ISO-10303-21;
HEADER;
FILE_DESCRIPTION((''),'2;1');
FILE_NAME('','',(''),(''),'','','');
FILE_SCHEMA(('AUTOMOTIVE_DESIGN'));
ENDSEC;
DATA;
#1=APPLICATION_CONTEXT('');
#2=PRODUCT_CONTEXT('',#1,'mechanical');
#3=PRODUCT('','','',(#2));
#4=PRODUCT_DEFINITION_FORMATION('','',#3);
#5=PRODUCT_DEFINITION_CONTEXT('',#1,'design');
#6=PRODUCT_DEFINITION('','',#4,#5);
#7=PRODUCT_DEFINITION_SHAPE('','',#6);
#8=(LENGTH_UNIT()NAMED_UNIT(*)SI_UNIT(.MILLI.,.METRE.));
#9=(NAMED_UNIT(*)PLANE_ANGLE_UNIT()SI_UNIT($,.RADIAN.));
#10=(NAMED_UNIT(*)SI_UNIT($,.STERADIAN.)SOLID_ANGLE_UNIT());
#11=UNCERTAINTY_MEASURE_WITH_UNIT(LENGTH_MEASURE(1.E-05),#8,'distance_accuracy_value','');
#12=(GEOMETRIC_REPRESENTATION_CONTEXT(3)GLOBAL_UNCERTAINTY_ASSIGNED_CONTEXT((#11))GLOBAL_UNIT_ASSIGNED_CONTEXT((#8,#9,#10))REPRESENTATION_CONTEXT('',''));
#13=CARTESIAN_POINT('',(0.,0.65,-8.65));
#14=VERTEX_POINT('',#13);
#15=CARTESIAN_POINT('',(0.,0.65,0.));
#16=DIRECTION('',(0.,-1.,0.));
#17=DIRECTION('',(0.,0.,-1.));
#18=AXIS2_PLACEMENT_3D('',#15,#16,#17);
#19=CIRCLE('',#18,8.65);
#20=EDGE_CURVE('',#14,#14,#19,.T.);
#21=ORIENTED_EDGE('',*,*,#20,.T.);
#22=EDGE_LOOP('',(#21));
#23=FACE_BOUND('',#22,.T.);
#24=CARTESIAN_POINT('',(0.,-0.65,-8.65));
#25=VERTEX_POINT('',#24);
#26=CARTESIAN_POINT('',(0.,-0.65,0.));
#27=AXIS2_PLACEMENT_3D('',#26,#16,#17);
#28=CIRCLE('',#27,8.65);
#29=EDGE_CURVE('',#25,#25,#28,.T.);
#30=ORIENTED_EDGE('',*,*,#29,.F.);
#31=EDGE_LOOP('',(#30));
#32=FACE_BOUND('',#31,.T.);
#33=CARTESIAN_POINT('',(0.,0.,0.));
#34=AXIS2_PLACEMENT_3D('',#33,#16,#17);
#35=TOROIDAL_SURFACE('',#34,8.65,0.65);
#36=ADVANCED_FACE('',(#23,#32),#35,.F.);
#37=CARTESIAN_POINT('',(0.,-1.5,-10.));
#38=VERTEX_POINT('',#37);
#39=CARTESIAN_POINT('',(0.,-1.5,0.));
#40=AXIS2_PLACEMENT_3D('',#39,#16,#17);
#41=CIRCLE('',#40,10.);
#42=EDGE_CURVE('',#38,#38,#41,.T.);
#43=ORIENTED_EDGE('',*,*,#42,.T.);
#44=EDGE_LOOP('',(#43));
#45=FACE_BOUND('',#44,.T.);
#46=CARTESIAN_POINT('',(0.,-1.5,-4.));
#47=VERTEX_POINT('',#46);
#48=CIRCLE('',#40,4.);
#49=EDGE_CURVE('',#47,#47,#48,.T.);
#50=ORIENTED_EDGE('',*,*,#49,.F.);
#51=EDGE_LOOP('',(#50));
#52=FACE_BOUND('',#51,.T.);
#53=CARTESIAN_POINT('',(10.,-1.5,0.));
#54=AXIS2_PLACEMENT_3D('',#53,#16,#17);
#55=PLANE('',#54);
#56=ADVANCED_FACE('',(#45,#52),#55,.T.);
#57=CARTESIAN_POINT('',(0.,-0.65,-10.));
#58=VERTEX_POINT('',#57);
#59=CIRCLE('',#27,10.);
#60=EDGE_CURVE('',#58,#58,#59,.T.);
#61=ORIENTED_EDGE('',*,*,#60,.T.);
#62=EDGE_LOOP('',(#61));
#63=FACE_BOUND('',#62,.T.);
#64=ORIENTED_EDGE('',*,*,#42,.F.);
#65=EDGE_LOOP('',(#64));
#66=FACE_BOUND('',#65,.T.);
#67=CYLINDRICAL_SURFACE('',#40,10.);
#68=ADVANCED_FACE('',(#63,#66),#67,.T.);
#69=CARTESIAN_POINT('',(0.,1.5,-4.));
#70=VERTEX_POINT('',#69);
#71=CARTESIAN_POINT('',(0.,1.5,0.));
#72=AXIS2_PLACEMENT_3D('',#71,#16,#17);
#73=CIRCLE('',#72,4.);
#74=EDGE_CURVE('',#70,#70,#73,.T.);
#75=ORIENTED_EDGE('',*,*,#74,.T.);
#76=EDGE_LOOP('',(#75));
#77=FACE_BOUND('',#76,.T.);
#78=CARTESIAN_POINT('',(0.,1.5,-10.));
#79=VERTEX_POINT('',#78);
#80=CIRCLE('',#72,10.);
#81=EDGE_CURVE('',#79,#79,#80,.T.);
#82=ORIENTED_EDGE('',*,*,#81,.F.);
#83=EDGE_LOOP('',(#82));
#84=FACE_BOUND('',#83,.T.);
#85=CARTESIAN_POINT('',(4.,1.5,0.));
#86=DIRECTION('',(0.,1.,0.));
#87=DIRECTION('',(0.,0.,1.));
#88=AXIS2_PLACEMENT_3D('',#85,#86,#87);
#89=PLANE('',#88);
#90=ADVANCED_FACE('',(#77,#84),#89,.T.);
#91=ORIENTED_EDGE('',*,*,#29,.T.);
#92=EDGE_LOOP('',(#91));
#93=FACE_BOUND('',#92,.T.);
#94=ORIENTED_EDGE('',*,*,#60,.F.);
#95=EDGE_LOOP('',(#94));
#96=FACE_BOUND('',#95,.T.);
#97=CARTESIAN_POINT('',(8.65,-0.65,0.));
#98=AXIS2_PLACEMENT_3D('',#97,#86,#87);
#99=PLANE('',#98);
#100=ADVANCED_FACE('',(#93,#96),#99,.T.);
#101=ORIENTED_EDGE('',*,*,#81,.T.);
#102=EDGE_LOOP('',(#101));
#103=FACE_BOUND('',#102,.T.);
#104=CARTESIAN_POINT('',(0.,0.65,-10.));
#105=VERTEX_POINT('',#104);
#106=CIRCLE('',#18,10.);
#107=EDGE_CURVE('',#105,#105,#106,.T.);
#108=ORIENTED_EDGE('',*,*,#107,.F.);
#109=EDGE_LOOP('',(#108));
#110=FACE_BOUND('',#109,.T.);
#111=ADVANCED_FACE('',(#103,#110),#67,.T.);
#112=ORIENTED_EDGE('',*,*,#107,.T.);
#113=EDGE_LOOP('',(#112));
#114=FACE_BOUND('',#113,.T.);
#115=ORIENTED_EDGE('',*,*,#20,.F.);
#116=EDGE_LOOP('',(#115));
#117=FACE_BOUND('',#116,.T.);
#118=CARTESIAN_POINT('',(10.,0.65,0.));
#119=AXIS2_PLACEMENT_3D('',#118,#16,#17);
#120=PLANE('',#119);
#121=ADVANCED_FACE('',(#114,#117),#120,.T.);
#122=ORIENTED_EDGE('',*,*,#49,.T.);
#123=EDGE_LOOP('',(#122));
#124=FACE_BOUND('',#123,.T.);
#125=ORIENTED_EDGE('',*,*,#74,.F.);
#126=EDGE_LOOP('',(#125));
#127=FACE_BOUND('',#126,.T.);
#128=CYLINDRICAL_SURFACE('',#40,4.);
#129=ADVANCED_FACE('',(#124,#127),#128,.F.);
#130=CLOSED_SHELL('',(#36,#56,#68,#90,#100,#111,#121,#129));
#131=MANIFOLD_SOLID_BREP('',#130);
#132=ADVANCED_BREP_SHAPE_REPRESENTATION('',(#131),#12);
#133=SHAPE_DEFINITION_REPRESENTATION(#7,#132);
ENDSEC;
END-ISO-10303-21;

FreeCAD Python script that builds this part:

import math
import FreeCAD as App
import Part
import Sketcher
from FreeCAD import Vector

doc = App.newDocument("Part")
body = doc.addObject("PartDesign::Body", "Body")

sketch1 = doc.addObject("Sketcher::SketchObject", "Sketch")
body.addObject(sketch1)
sketch1.AttachmentSupport = (doc.XY_Plane, [""])
sketch1.MapMode = "FlatFace"
sketch1.addGeometry([
    Part.LineSegment(Vector(4, 1.5, 0), Vector(4, -1.5, 0)),
    Part.LineSegment(Vector(4, -1.5, 0), Vector(10, -1.5, 0)),
    Part.LineSegment(Vector(10, -1.5, 0), Vector(10, -0.7, 0)),
    Part.LineSegment(Vector(10, -0.7, 0), Vector(8.7, -0.7, 0)),
    Part.ArcOfCircle(Part.Circle(Vector(8.7, 0, 0), Vector(0, 0, 1), 0.7), math.radians(90), math.radians(270)),
    Part.LineSegment(Vector(8.7, 0.7, 0), Vector(10, 0.7, 0)),
    Part.LineSegment(Vector(10, 0.7, 0), Vector(10, 1.5, 0)),
    Part.LineSegment(Vector(10, 1.5, 0), Vector(4, 1.5, 0)),
], False)
sketch1.addConstraint([
    Sketcher.Constraint("Coincident", 0, 2, 1, 1),
    Sketcher.Constraint("Coincident", 1, 2, 2, 1),
    Sketcher.Constraint("Coincident", 2, 2, 3, 1),
    Sketcher.Constraint("Tangent", 3, 2, 4, 2),
    Sketcher.Constraint("Tangent", 4, 1, 5, 1),
    Sketcher.Constraint("Coincident", 5, 2, 6, 1),
    Sketcher.Constraint("Coincident", 6, 2, 7, 1),
    Sketcher.Constraint("Coincident", 7, 2, 0, 1),
    Sketcher.Constraint("Vertical", 0),
    Sketcher.Constraint("Horizontal", 1),
    Sketcher.Constraint("Vertical", 2),
    Sketcher.Constraint("Horizontal", 3),
    Sketcher.Constraint("Horizontal", 5),
    Sketcher.Constraint("Vertical", 6),
    Sketcher.Constraint("Horizontal", 7),
    Sketcher.Constraint("Symmetric", 2, 2, 5, 2, -1),
    Sketcher.Constraint("Equal", 2, 6),
    Sketcher.Constraint("DistanceX", 1, 1, 1, 2, 6.0),
    Sketcher.Constraint("DistanceY", 0, 2, 0, 1, 3.0),
    Sketcher.Constraint("Radius", 4, 0.65),
    Sketcher.Constraint("DistanceX", -1, 1, 0, 2, 4.0),
    Sketcher.Constraint("DistanceX", 3, 2, 3, 1, 1.35),
])
revolution = doc.addObject("PartDesign::Revolution", "Revolution")
body.addObject(revolution)
revolution.Profile = sketch1
revolution.ReferenceAxis = (sketch1, ["V_Axis"])
revolution.Angle = 360

doc.recompute()
